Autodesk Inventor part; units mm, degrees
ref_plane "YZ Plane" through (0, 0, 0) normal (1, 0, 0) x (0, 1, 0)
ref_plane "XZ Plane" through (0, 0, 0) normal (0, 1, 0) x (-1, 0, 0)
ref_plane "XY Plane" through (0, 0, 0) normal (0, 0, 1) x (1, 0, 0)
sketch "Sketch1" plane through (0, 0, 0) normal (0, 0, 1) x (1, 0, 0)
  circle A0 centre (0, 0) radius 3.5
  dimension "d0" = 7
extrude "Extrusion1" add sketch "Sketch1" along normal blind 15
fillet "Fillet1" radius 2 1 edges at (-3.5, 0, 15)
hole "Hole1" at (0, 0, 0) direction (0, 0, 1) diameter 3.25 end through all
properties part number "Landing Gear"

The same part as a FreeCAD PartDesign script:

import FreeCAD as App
import Part
import Sketcher
from FreeCAD import Vector
Q = App.Units.Quantity


def edges_at(feature, points):
    """Names of the edges that pass closest to the given points."""
    edges = feature.Shape.Edges
    near = lambda p: min(range(len(edges)), key=lambda i: edges[i].distToShape(Part.Vertex(*p))[0])
    return sorted({f"Edge{near(p) + 1}" for p in points})

doc = App.newDocument("Part")
body = doc.addObject("PartDesign::Body", "Body")

sketch1 = doc.addObject("Sketcher::SketchObject", "Sketch")
body.addObject(sketch1)
sketch1.AttachmentSupport = (doc.XY_Plane, [""])
sketch1.MapMode = "FlatFace"
sketch1.addGeometry(Part.Circle(Vector(0, 0, 0), Vector(0, 0, 1), 3.5), False)
sketch1.addConstraint([
    Sketcher.Constraint("Coincident", 0, 3, -1, 1),
    Sketcher.Constraint("Diameter", 0, Q("7 mm")),
])
pad1 = doc.addObject("PartDesign::Pad", "Pad")
body.addObject(pad1)
pad1.Profile = sketch1
pad1.Length = 15
doc.recompute()

fillet = doc.addObject("PartDesign::Fillet", "Fillet")
body.addObject(fillet)
fillet.Base = (pad1, edges_at(pad1, [(-3.5, 0, 15)]))
fillet.Radius = 2

sketch2 = doc.addObject("Sketcher::SketchObject", "Sketch001")
body.addObject(sketch2)
sketch2.AttachmentSupport = (doc.XY_Plane, [""])
sketch2.MapMode = "FlatFace"
sketch2.addGeometry(Part.Circle(Vector(0, 0, 0), Vector(0, 0, 1), 1.6), False)
sketch2.addConstraint([
    Sketcher.Constraint("Coincident", 0, 3, -1, 1),
    Sketcher.Constraint("Diameter", 0, Q("3.25 mm")),
])
doc.recompute()
hole = doc.addObject("PartDesign::Hole", "Hole")
body.addObject(hole)
hole.Profile = sketch2
hole.ThreadType = "None"
hole.Diameter = 3.25
hole.DepthType = "ThroughAll"
hole.Reversed = True

doc.recompute()
